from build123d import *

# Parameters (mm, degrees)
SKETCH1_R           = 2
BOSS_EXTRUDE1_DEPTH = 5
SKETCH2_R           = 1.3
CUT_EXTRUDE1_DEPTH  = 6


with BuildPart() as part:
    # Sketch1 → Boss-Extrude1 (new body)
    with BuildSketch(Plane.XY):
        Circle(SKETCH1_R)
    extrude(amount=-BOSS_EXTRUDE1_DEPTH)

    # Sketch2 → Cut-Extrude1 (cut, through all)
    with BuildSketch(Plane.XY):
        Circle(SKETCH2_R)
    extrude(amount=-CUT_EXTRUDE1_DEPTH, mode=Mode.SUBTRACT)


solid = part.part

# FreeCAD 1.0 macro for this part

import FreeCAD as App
import Part
import Sketcher

V = App.Vector

doc = App.newDocument("Part")
body = doc.addObject("PartDesign::Body", "Body")

sketch1 = body.newObject("Sketcher::SketchObject", "Sketch")
sketch1.AttachmentSupport = (doc.getObject("XY_Plane"), [""])
sketch1.MapMode = "FlatFace"
sketch1.addGeometry(Part.Circle(V(0, 0, 0), V(0, 0, 1), 2), False)
sketch1.addConstraint(Sketcher.Constraint("Coincident", 0, 3, -1, 1))
sketch1.addConstraint(Sketcher.Constraint("Diameter", 0, 4.0))
pad1 = body.newObject("PartDesign::Pad", "Pad")
pad1.Profile = sketch1
pad1.Length = 5
pad1.Reversed = True

sketch2 = body.newObject("Sketcher::SketchObject", "Sketch001")
sketch2.AttachmentSupport = (doc.getObject("XY_Plane"), [""])
sketch2.MapMode = "FlatFace"
sketch2.addGeometry(Part.Circle(V(0, 0, 0), V(0, 0, 1), 1.3), False)
sketch2.addConstraint(Sketcher.Constraint("Coincident", 0, 3, -1, 1))
sketch2.addConstraint(Sketcher.Constraint("Diameter", 0, 2.6))
pocket1 = body.newObject("PartDesign::Pocket", "Pocket")
pocket1.Profile = sketch2
pocket1.Type = "ThroughAll"

doc.recompute()
